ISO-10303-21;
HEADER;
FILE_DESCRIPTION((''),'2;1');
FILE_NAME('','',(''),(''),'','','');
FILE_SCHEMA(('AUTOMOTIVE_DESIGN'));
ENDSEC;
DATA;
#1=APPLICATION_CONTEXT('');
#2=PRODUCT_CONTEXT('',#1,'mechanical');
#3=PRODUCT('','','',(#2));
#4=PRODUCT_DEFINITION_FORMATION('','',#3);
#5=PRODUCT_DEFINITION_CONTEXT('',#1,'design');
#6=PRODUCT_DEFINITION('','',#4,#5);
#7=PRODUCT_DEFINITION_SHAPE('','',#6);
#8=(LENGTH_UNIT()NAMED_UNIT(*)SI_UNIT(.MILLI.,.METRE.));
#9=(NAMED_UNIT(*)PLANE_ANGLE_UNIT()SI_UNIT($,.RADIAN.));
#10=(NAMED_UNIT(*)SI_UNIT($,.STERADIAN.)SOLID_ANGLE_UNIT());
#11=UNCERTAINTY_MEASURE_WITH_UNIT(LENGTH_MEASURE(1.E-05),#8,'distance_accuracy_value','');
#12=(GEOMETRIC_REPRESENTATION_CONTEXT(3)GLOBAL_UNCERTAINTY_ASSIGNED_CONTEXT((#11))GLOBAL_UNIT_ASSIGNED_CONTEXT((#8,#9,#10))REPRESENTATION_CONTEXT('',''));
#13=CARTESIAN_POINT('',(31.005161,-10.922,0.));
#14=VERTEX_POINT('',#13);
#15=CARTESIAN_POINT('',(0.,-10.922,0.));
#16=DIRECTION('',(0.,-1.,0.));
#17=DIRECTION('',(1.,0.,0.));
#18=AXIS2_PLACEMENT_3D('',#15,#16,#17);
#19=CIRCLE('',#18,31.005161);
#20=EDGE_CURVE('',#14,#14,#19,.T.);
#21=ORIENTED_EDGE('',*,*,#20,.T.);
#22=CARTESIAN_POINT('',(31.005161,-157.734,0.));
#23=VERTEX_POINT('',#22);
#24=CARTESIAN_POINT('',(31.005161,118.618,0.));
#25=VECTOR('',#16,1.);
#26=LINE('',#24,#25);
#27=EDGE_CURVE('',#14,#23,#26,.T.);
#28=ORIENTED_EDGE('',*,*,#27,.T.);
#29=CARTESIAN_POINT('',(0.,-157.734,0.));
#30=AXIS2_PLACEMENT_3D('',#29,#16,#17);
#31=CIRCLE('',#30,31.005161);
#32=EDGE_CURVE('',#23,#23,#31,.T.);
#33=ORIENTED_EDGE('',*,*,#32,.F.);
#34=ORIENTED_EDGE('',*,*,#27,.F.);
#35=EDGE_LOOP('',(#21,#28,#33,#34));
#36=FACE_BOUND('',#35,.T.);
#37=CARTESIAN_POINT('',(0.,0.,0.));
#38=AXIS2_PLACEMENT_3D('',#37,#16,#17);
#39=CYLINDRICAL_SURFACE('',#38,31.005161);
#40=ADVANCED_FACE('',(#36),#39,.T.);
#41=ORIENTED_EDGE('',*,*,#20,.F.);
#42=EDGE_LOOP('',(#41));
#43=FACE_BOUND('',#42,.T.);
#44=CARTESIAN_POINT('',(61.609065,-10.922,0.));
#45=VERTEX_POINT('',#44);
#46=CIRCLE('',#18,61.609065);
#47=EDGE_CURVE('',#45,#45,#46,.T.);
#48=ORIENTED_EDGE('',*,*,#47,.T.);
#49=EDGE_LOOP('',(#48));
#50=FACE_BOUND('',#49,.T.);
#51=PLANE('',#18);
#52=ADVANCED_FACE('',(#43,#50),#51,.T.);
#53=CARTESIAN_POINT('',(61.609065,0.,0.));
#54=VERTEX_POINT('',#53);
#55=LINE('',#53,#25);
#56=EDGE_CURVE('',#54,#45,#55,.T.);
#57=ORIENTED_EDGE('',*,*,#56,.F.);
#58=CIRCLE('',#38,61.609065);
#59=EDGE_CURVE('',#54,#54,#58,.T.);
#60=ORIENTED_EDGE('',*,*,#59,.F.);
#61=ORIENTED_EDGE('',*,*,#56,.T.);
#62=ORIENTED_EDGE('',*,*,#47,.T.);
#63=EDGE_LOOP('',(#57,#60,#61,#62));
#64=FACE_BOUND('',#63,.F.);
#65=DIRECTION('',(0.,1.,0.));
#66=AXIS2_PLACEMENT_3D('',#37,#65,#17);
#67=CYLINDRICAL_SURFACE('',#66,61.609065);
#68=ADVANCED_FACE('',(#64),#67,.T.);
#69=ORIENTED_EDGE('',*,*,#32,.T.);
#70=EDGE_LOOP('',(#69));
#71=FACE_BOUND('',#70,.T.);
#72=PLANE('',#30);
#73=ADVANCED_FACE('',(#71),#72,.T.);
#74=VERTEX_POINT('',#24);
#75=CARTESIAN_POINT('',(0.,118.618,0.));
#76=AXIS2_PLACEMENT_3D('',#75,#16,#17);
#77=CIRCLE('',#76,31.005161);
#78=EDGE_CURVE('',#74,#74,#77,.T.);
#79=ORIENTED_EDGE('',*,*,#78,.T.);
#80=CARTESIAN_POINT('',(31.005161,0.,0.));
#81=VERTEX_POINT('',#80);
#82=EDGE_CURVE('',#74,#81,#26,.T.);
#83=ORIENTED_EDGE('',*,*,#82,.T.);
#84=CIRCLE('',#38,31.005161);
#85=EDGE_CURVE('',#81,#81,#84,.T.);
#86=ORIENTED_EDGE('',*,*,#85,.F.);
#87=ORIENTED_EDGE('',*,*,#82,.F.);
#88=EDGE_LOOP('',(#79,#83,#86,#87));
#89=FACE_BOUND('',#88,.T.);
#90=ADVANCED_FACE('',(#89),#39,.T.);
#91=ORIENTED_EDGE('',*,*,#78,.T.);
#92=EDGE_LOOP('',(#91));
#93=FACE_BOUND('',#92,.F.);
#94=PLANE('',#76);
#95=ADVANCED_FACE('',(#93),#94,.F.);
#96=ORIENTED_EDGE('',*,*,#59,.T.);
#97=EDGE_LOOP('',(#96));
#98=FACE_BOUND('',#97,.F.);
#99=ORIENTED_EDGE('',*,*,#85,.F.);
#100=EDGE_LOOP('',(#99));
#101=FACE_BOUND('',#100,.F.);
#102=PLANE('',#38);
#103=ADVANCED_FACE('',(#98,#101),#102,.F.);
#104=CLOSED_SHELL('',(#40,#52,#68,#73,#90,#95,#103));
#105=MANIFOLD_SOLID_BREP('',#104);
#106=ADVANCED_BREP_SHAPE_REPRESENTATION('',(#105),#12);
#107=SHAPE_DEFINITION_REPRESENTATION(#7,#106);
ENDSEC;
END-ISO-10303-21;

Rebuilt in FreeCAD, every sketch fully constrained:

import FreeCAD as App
import Part
import Sketcher

V = App.Vector
Q = App.Units.Quantity

doc = App.newDocument("Part")
params = doc.addObject("Spreadsheet::Sheet", "Params")
for row, (alias, value) in enumerate([
    ("pad1_length", "6.21 in"),
    ("pad1_length2", "4.67 in"),
    ("pad2_length", "0.43 in"),
], start=1):
    params.set(f"A{row}", alias)
    params.set(f"B{row}", "=" + value)
    params.setAlias(f"B{row}", alias)

body = doc.addObject("PartDesign::Body", "Body")

# Sketch on XZ plane
sketch1 = doc.addObject("Sketcher::SketchObject", "Sketch")
body.addObject(sketch1)
sketch1.AttachmentSupport = (doc.XZ_Plane, [""])
sketch1.MapMode = "FlatFace"
sketch1.addGeometry(Part.Circle(V(0, 0, 0), V(0, 0, 1), 31.005161), False)
sketch1.addConstraint([
    Sketcher.Constraint("Coincident", 0, 3, -1, 1),
    Sketcher.Constraint("Diameter", 0, Q("62.010322 mm")),
])
pad1 = doc.addObject("PartDesign::Pad", "Pad")
body.addObject(pad1)
pad1.Profile = sketch1
pad1.Type = "TwoLengths"
pad1.setExpression("Length", "Params.pad1_length")
pad1.setExpression("Length2", "Params.pad1_length2")

# Sketch on XZ plane
sketch2 = doc.addObject("Sketcher::SketchObject", "Sketch001")
body.addObject(sketch2)
sketch2.AttachmentSupport = (doc.XZ_Plane, [""])
sketch2.MapMode = "FlatFace"
sketch2.addGeometry([
    Part.Circle(V(0, 0, 0), V(0, 0, 1), 61.609065),
    Part.Circle(V(0, 0, 0), V(0, 0, 1), 31.005161),
], False)
sketch2.addConstraint([
    Sketcher.Constraint("Coincident", 0, 3, -1, 1),
    Sketcher.Constraint("Coincident", 1, 3, -1, 1),
    Sketcher.Constraint("Diameter", 0, Q("123.21813 mm")),
    Sketcher.Constraint("Diameter", 1, Q("62.010322 mm")),
])
pad2 = doc.addObject("PartDesign::Pad", "Pad001")
body.addObject(pad2)
pad2.Profile = sketch2
pad2.setExpression("Length", "Params.pad2_length")

doc.recompute()
